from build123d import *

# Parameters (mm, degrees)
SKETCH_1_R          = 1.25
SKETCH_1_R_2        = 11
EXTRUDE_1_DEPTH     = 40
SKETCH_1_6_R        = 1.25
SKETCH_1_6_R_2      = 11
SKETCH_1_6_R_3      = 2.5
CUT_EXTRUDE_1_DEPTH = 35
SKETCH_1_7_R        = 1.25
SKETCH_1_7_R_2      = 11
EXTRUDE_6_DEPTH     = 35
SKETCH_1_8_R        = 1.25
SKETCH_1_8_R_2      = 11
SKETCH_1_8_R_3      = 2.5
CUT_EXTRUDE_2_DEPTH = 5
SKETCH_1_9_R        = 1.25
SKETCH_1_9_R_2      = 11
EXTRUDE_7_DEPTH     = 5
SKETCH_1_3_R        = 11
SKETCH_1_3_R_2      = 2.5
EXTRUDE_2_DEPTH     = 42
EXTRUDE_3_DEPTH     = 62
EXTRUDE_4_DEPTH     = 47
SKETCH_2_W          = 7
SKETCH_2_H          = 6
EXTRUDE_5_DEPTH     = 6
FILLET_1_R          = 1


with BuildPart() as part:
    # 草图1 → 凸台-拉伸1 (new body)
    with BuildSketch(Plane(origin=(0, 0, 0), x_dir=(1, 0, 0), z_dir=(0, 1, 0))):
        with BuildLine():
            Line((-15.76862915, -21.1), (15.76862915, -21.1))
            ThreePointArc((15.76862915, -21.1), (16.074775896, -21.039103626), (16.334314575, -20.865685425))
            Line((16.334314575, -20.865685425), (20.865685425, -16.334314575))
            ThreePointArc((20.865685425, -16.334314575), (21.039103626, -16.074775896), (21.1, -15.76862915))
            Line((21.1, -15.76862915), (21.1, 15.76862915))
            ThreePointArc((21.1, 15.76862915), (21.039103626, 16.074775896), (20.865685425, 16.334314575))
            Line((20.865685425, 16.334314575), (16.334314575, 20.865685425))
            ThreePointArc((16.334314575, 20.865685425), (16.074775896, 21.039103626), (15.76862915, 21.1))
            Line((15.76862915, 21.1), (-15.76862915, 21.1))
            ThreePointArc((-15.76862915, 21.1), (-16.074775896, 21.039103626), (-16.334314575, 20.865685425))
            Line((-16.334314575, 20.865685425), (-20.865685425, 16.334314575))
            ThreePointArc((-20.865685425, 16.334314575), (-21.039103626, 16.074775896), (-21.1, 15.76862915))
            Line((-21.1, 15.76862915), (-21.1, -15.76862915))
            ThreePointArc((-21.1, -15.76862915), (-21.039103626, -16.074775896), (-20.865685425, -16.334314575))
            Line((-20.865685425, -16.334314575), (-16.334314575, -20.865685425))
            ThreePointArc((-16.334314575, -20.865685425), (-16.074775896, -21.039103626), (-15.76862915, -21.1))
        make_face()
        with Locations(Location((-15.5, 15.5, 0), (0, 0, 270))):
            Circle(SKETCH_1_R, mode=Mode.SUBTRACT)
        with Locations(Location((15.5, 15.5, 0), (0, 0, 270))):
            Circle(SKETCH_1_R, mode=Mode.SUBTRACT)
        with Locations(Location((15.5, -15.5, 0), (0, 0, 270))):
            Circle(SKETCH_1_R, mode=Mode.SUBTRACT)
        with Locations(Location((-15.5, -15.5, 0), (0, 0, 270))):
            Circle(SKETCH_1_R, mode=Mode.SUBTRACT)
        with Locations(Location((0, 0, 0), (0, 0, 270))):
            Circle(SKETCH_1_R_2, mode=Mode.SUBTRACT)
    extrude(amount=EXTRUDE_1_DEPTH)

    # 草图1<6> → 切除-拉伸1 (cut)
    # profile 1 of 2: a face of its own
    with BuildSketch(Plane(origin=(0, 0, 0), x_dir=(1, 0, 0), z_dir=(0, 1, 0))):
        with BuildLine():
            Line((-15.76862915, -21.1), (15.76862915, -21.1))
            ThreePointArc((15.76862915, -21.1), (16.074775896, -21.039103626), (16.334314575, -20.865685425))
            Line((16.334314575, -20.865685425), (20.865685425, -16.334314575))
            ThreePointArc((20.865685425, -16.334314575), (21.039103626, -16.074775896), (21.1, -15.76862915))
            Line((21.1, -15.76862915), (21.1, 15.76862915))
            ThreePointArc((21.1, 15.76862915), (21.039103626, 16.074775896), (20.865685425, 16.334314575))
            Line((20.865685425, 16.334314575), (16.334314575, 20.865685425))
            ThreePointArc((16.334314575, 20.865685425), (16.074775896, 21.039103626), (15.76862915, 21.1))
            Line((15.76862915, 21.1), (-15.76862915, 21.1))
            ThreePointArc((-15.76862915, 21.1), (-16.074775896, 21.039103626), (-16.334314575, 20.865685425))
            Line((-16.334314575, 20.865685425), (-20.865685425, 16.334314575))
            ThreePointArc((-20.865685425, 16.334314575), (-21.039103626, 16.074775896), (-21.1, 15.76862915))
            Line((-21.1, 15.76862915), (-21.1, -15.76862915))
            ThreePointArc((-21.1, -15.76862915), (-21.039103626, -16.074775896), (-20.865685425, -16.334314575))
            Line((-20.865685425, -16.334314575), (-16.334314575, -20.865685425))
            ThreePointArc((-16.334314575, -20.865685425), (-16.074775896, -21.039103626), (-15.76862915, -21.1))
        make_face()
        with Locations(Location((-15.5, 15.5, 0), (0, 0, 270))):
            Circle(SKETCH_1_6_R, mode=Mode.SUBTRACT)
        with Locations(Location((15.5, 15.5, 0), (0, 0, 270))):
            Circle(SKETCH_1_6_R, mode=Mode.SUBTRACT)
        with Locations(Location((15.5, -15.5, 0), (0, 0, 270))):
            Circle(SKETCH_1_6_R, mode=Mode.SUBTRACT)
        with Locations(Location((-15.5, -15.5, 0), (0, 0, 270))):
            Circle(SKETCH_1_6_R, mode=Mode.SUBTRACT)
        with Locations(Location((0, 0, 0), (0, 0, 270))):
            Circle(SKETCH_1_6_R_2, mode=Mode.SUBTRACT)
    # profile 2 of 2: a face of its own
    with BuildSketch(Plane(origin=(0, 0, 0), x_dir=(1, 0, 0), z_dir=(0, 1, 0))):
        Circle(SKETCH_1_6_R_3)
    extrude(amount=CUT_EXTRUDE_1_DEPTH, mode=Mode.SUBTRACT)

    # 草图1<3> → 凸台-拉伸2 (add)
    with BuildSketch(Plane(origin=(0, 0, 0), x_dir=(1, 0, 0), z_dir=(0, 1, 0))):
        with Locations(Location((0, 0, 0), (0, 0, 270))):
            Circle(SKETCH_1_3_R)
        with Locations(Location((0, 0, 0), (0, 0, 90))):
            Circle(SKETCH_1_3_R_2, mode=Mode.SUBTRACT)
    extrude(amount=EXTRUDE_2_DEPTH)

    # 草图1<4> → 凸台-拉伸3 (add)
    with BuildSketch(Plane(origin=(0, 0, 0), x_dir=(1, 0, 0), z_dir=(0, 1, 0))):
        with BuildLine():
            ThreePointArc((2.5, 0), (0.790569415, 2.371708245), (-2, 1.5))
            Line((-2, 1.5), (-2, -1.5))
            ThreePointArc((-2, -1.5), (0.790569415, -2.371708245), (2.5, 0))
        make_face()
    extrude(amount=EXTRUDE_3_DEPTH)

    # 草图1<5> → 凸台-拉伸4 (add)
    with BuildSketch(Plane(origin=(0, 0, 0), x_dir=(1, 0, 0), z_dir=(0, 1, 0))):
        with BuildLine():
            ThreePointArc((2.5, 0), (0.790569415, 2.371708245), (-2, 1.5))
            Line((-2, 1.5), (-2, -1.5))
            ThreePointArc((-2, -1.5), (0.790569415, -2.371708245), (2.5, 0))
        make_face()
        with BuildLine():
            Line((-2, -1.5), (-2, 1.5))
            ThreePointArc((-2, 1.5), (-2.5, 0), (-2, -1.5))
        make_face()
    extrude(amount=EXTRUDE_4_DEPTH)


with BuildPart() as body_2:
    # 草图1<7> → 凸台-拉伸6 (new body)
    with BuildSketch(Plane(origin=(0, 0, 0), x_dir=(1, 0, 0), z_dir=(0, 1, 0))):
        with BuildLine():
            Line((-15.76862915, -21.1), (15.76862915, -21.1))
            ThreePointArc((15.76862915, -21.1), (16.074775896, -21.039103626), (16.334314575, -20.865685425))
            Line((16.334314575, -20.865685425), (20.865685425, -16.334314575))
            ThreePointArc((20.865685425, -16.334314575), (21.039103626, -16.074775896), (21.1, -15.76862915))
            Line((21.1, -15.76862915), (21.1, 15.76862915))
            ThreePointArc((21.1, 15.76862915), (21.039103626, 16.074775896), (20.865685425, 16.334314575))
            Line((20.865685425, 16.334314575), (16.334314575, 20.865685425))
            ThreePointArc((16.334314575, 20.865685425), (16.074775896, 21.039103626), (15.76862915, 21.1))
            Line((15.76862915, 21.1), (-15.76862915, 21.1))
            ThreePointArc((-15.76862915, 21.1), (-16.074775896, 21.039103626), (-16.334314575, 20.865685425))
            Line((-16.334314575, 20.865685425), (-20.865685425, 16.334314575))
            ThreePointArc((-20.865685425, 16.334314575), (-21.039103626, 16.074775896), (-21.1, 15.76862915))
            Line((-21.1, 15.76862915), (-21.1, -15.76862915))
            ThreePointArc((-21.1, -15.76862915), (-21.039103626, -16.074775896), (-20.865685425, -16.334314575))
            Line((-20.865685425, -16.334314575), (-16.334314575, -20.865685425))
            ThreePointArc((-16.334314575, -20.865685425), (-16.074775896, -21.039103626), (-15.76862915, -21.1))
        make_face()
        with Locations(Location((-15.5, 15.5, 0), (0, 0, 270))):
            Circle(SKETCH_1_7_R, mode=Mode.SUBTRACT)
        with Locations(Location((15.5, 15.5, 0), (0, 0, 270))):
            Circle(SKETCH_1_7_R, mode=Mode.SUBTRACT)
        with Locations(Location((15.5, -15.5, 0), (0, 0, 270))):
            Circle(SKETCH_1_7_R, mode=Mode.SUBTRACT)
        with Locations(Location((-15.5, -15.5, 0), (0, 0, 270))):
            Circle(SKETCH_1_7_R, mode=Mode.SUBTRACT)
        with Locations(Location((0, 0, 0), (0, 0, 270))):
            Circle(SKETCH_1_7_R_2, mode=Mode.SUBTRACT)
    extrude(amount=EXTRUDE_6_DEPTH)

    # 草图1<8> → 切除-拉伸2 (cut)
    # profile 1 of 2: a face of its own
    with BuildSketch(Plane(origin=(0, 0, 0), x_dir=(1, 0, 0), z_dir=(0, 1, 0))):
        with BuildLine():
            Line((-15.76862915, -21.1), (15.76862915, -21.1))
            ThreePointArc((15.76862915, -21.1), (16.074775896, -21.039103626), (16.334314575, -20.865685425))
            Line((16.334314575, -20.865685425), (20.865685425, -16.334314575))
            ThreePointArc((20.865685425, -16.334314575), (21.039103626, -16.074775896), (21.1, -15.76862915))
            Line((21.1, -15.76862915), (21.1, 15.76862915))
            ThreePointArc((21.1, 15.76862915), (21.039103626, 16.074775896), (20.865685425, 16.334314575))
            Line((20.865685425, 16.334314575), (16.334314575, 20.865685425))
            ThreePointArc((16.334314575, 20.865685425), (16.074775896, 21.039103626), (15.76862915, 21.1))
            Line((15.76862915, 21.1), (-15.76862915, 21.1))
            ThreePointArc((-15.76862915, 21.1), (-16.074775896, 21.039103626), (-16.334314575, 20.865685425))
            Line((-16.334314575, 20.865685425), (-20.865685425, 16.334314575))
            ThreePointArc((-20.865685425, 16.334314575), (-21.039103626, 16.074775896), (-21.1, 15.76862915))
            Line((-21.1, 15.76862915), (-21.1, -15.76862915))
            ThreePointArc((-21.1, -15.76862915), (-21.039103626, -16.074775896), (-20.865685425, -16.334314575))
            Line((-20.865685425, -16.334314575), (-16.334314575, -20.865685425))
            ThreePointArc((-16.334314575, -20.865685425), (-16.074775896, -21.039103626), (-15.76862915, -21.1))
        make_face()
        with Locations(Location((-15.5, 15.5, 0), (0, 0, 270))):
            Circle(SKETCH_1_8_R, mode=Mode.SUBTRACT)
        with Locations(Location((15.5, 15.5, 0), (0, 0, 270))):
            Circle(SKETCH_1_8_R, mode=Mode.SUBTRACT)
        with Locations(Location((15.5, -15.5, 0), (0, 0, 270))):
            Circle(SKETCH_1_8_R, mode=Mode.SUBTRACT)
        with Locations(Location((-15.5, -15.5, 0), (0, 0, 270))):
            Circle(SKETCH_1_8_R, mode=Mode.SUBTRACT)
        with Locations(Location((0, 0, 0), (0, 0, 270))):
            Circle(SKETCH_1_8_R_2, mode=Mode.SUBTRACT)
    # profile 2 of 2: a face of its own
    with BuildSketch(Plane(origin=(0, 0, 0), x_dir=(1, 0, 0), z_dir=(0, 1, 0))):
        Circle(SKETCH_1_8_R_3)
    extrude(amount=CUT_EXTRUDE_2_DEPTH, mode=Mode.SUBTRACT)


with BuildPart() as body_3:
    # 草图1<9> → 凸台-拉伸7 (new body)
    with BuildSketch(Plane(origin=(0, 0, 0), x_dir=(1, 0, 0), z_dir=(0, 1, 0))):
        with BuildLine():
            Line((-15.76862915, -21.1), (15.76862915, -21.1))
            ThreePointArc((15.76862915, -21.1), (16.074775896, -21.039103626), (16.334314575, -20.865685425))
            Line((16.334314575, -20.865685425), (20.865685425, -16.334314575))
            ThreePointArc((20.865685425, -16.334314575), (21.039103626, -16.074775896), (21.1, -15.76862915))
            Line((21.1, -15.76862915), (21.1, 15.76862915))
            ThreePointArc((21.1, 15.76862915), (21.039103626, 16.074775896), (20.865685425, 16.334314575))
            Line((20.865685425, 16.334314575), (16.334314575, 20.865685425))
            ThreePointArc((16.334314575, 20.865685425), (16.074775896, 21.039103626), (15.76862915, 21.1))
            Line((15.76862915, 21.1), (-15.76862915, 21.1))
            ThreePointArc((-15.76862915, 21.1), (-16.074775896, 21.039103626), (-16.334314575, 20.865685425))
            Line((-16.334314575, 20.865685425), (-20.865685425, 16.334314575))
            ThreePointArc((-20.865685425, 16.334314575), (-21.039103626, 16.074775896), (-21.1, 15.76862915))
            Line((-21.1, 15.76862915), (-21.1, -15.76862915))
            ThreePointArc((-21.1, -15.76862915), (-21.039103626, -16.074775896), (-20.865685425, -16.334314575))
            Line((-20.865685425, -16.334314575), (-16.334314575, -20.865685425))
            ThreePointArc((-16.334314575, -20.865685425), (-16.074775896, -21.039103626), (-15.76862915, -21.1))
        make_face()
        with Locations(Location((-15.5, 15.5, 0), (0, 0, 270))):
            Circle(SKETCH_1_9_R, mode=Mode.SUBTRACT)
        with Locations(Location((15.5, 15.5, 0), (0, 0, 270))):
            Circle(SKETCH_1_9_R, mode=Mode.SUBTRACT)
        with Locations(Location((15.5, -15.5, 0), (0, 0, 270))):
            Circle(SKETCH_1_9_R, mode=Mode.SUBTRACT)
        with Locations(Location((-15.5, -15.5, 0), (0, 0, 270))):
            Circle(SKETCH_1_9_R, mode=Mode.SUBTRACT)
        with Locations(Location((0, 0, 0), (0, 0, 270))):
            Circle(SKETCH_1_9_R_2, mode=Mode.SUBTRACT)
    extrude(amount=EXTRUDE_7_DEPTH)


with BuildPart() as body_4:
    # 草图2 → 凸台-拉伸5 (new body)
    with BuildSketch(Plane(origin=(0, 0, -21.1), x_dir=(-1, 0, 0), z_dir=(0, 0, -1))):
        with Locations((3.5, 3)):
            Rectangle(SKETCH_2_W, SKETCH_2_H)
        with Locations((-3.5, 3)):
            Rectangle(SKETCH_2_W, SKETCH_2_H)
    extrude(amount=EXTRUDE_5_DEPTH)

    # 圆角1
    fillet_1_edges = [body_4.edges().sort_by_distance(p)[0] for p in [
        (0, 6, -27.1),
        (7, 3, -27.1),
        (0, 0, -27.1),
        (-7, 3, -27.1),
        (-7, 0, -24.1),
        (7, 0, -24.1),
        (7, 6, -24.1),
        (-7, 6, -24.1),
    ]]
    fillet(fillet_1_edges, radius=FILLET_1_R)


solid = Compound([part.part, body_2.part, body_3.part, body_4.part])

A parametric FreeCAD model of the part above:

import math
import FreeCAD as App
import Part
import Sketcher

V = App.Vector
Q = App.Units.Quantity


def edges_at(feature, points):
    """Names of the edges that pass closest to the given points."""
    edges = feature.Shape.Edges
    near = lambda p: min(range(len(edges)), key=lambda i: edges[i].distToShape(Part.Vertex(*p))[0])
    return sorted({f"Edge{near(p) + 1}" for p in points})

doc = App.newDocument("Part")
body = doc.addObject("PartDesign::Body", "Body")

sketch1 = body.newObject("Sketcher::SketchObject", "Sketch")
sketch1.AttachmentSupport = (doc.getObject("XZ_Plane"), [""])
sketch1.MapMode = "FlatFace"
sketch1.addGeometry([
    Part.LineSegment(V(-15.8, 21.1, 0), V(15.8, 21.1, 0)),
    Part.ArcOfCircle(Part.Circle(V(15.8, 20.3, 0), V(0, 0, 1), 0.8), math.radians(45), math.radians(90)),
    Part.LineSegment(V(16.3, 20.9, 0), V(20.9, 16.3, 0)),
    Part.ArcOfCircle(Part.Circle(V(20.3, 15.8, 0), V(0, 0, 1), 0.8), math.radians(0), math.radians(45)),
    Part.LineSegment(V(21.1, 15.8, 0), V(21.1, -15.8, 0)),
    Part.ArcOfCircle(Part.Circle(V(20.3, -15.8, 0), V(0, 0, 1), 0.8), math.radians(-45), math.radians(0)),
    Part.LineSegment(V(20.9, -16.3, 0), V(16.3, -20.9, 0)),
    Part.ArcOfCircle(Part.Circle(V(15.8, -20.3, 0), V(0, 0, 1), 0.8), math.radians(-90), math.radians(-45)),
    Part.LineSegment(V(15.8, -21.1, 0), V(-15.8, -21.1, 0)),
    Part.ArcOfCircle(Part.Circle(V(-15.8, -20.3, 0), V(0, 0, 1), 0.8), math.radians(-135), math.radians(-90)),
    Part.LineSegment(V(-16.3, -20.9, 0), V(-20.9, -16.3, 0)),
    Part.ArcOfCircle(Part.Circle(V(-20.3, -15.8, 0), V(0, 0, 1), 0.8), math.radians(180), math.radians(225)),
    Part.LineSegment(V(-21.1, -15.8, 0), V(-21.1, 15.8, 0)),
    Part.ArcOfCircle(Part.Circle(V(-20.3, 15.8, 0), V(0, 0, 1), 0.8), math.radians(135), math.radians(180)),
    Part.LineSegment(V(-20.9, 16.3, 0), V(-16.3, 20.9, 0)),
    Part.ArcOfCircle(Part.Circle(V(-15.8, 20.3, 0), V(0, 0, 1), 0.8), math.radians(90), math.radians(135)),
    Part.Circle(V(-15.5, 15.5, 0), V(0, 0, 1), 1.2),
    Part.Circle(V(15.5, 15.5, 0), V(0, 0, 1), 1.2),
    Part.Circle(V(-15.5, -15.5, 0), V(0, 0, 1), 1.2),
    Part.Circle(V(0, 0, 0), V(0, 0, 1), 11),
    Part.Circle(V(15.5, -15.5, 0), V(0, 0, 1), 1.2),
], False)
sketch1.addConstraint([
    Sketcher.Constraint("Tangent", 0, 2, 1, 2),
    Sketcher.Constraint("Tangent", 1, 1, 2, 1),
    Sketcher.Constraint("Tangent", 2, 2, 3, 2),
    Sketcher.Constraint("Tangent", 3, 1, 4, 1),
    Sketcher.Constraint("Tangent", 4, 2, 5, 2),
    Sketcher.Constraint("Tangent", 5, 1, 6, 1),
    Sketcher.Constraint("Tangent", 6, 2, 7, 2),
    Sketcher.Constraint("Tangent", 7, 1, 8, 1),
    Sketcher.Constraint("Tangent", 8, 2, 9, 2),
    Sketcher.Constraint("Tangent", 9, 1, 10, 1),
    Sketcher.Constraint("Tangent", 10, 2, 11, 2),
    Sketcher.Constraint("Tangent", 11, 1, 12, 1),
    Sketcher.Constraint("Tangent", 12, 2, 13, 2),
    Sketcher.Constraint("Tangent", 13, 1, 14, 1),
    Sketcher.Constraint("Tangent", 14, 2, 15, 2),
    Sketcher.Constraint("Tangent", 15, 1, 0, 1),
    Sketcher.Constraint("Horizontal", 0),
    Sketcher.Constraint("Vertical", 4),
    Sketcher.Constraint("Horizontal", 8),
    Sketcher.Constraint("Vertical", 12),
    Sketcher.Constraint("Coincident", 19, 3, -1, 1),
    Sketcher.Constraint("Equal", 1, 3),
    Sketcher.Constraint("Equal", 3, 5),
    Sketcher.Constraint("Equal", 5, 7),
    Sketcher.Constraint("Equal", 7, 9),
    Sketcher.Constraint("Equal", 9, 11),
    Sketcher.Constraint("Equal", 11, 13),
    Sketcher.Constraint("Equal", 13, 15),
    Sketcher.Constraint("Equal", 16, 17),
    Sketcher.Constraint("Equal", 17, 18),
    Sketcher.Constraint("Equal", 18, 20),
    Sketcher.Constraint("Symmetric", 1, 3, 9, 3, -1, 1),
    Sketcher.Constraint("Symmetric", 3, 3, 11, 3, -1, 1),
    Sketcher.Constraint("Symmetric", 17, 3, 18, 3, -1, 1),
    Sketcher.Constraint("Symmetric", 16, 3, 20, 3, -1, 1),
    Sketcher.Constraint("Symmetric", 5, 1, 13, 1, -1, 1),
    Sketcher.Constraint("Symmetric", 16, 3, 17, 3, -2),
    Sketcher.Constraint("Symmetric", 6, 2, 9, 1, -2),
    Sketcher.Constraint("Perpendicular", 2, 6),
    Sketcher.Constraint("Equal", 8, 4),
    Sketcher.Constraint("Diameter", 19, Q("22 mm")),
    Sketcher.Constraint("Diameter", 16, Q("2.5 mm")),
    Sketcher.Constraint("Radius", 1, Q("0.8 mm")),
    Sketcher.Constraint("DistanceX", 16, 3, 17, 3, Q("31 mm")),
    Sketcher.Constraint("DistanceY", 18, 3, 16, 3, Q("31 mm")),
    Sketcher.Constraint("DistanceY", -1, 1, 1, 3, Q("20.3 mm")),
    Sketcher.Constraint("DistanceX", 0, 1, 0, 2, Q("31.537258 mm")),
])
pad1 = body.newObject("PartDesign::Pad", "Pad")
pad1.Profile = sketch1
pad1.Length = 40
pad1.Reversed = True

sketch2 = body.newObject("Sketcher::SketchObject", "Sketch001")
sketch2.AttachmentSupport = (doc.getObject("XZ_Plane"), [""])
sketch2.MapMode = "FlatFace"
sketch2.addGeometry([
    Part.LineSegment(V(-15.8, 21.1, 0), V(15.8, 21.1, 0)),
    Part.ArcOfCircle(Part.Circle(V(15.8, 20.3, 0), V(0, 0, 1), 0.8), math.radians(45), math.radians(90)),
    Part.LineSegment(V(16.3, 20.9, 0), V(20.9, 16.3, 0)),
    Part.ArcOfCircle(Part.Circle(V(20.3, 15.8, 0), V(0, 0, 1), 0.8), math.radians(0), math.radians(45)),
    Part.LineSegment(V(21.1, 15.8, 0), V(21.1, -15.8, 0)),
    Part.ArcOfCircle(Part.Circle(V(20.3, -15.8, 0), V(0, 0, 1), 0.8), math.radians(-45), math.radians(0)),
    Part.LineSegment(V(20.9, -16.3, 0), V(16.3, -20.9, 0)),
    Part.ArcOfCircle(Part.Circle(V(15.8, -20.3, 0), V(0, 0, 1), 0.8), math.radians(-90), math.radians(-45)),
    Part.LineSegment(V(15.8, -21.1, 0), V(-15.8, -21.1, 0)),
    Part.ArcOfCircle(Part.Circle(V(-15.8, -20.3, 0), V(0, 0, 1), 0.8), math.radians(-135), math.radians(-90)),
    Part.LineSegment(V(-16.3, -20.9, 0), V(-20.9, -16.3, 0)),
    Part.ArcOfCircle(Part.Circle(V(-20.3, -15.8, 0), V(0, 0, 1), 0.8), math.radians(180), math.radians(225)),
    Part.LineSegment(V(-21.1, -15.8, 0), V(-21.1, 15.8, 0)),
    Part.ArcOfCircle(Part.Circle(V(-20.3, 15.8, 0), V(0, 0, 1), 0.8), math.radians(135), math.radians(180)),
    Part.LineSegment(V(-20.9, 16.3, 0), V(-16.3, 20.9, 0)),
    Part.ArcOfCircle(Part.Circle(V(-15.8, 20.3, 0), V(0, 0, 1), 0.8), math.radians(90), math.radians(135)),
    Part.Circle(V(-15.5, 15.5, 0), V(0, 0, 1), 1.2),
    Part.Circle(V(15.5, 15.5, 0), V(0, 0, 1), 1.2),
    Part.Circle(V(-15.5, -15.5, 0), V(0, 0, 1), 1.2),
    Part.Circle(V(0, 0, 0), V(0, 0, 1), 11),
    Part.Circle(V(15.5, -15.5, 0), V(0, 0, 1), 1.2),
    Part.Circle(V(0, 0, 0), V(0, 0, 1), 2.5),
], False)
sketch2.addConstraint([
    Sketcher.Constraint("Tangent", 0, 2, 1, 2),
    Sketcher.Constraint("Tangent", 1, 1, 2, 1),
    Sketcher.Constraint("Tangent", 2, 2, 3, 2),
    Sketcher.Constraint("Tangent", 3, 1, 4, 1),
    Sketcher.Constraint("Tangent", 4, 2, 5, 2),
    Sketcher.Constraint("Tangent", 5, 1, 6, 1),
    Sketcher.Constraint("Tangent", 6, 2, 7, 2),
    Sketcher.Constraint("Tangent", 7, 1, 8, 1),
    Sketcher.Constraint("Tangent", 8, 2, 9, 2),
    Sketcher.Constraint("Tangent", 9, 1, 10, 1),
    Sketcher.Constraint("Tangent", 10, 2, 11, 2),
    Sketcher.Constraint("Tangent", 11, 1, 12, 1),
    Sketcher.Constraint("Tangent", 12, 2, 13, 2),
    Sketcher.Constraint("Tangent", 13, 1, 14, 1),
    Sketcher.Constraint("Tangent", 14, 2, 15, 2),
    Sketcher.Constraint("Tangent", 15, 1, 0, 1),
    Sketcher.Constraint("Horizontal", 0),
    Sketcher.Constraint("Vertical", 4),
    Sketcher.Constraint("Horizontal", 8),
    Sketcher.Constraint("Vertical", 12),
    Sketcher.Constraint("Coincident", 19, 3, -1, 1),
    Sketcher.Constraint("Coincident", 21, 3, -1, 1),
    Sketcher.Constraint("Equal", 1, 3),
    Sketcher.Constraint("Equal", 3, 5),
    Sketcher.Constraint("Equal", 5, 7),
    Sketcher.Constraint("Equal", 7, 9),
    Sketcher.Constraint("Equal", 9, 11),
    Sketcher.Constraint("Equal", 11, 13),
    Sketcher.Constraint("Equal", 13, 15),
    Sketcher.Constraint("Equal", 16, 17),
    Sketcher.Constraint("Equal", 17, 18),
    Sketcher.Constraint("Equal", 18, 20),
    Sketcher.Constraint("Symmetric", 1, 3, 9, 3, -1, 1),
    Sketcher.Constraint("Symmetric", 3, 3, 11, 3, -1, 1),
    Sketcher.Constraint("Symmetric", 17, 3, 18, 3, -1, 1),
    Sketcher.Constraint("Symmetric", 16, 3, 20, 3, -1, 1),
    Sketcher.Constraint("Symmetric", 5, 1, 13, 1, -1, 1),
    Sketcher.Constraint("Symmetric", 16, 3, 17, 3, -2),
    Sketcher.Constraint("Symmetric", 6, 2, 9, 1, -2),
    Sketcher.Constraint("Perpendicular", 2, 6),
    Sketcher.Constraint("Equal", 8, 4),
    Sketcher.Constraint("Diameter", 19, Q("22 mm")),
    Sketcher.Constraint("Diameter", 21, Q("5 mm")),
    Sketcher.Constraint("Diameter", 16, Q("2.5 mm")),
    Sketcher.Constraint("Radius", 1, Q("0.8 mm")),
    Sketcher.Constraint("DistanceX", 16, 3, 17, 3, Q("31 mm")),
    Sketcher.Constraint("DistanceY", 18, 3, 16, 3, Q("31 mm")),
    Sketcher.Constraint("DistanceY", -1, 1, 1, 3, Q("20.3 mm")),
    Sketcher.Constraint("DistanceX", 0, 1, 0, 2, Q("31.537258 mm")),
])
pocket1 = body.newObject("PartDesign::Pocket", "Pocket")
pocket1.Profile = sketch2
pocket1.Length = 35

sketch3 = body.newObject("Sketcher::SketchObject", "Sketch002")
sketch3.AttachmentSupport = (doc.getObject("XZ_Plane"), [""])
sketch3.MapMode = "FlatFace"
sketch3.addGeometry([
    Part.Circle(V(0, 0, 0), V(0, 0, 1), 11),
    Part.Circle(V(0, 0, 0), V(0, 0, 1), 2.5),
], False)
sketch3.addConstraint([
    Sketcher.Constraint("Coincident", 0, 3, -1, 1),
    Sketcher.Constraint("Coincident", 1, 3, -1, 1),
    Sketcher.Constraint("Diameter", 0, Q("22 mm")),
    Sketcher.Constraint("Diameter", 1, Q("5 mm")),
])
pad2 = body.newObject("PartDesign::Pad", "Pad001")
pad2.Profile = sketch3
pad2.Length = 42
pad2.Reversed = True

sketch4 = body.newObject("Sketcher::SketchObject", "Sketch003")
sketch4.AttachmentSupport = (doc.getObject("XZ_Plane"), [""])
sketch4.MapMode = "FlatFace"
sketch4.addGeometry([
    Part.ArcOfCircle(Part.Circle(V(0, 0, 0), V(0, 0, 1), 2.5), math.radians(-143), math.radians(0)),
    Part.LineSegment(V(-2, -1.5, 0), V(-2, 1.5, 0)),
    Part.ArcOfCircle(Part.Circle(V(0, 0, 0), V(0, 0, 1), 2.5), math.radians(0), math.radians(143)),
], False)
sketch4.addConstraint([
    Sketcher.Constraint("Coincident", 0, 1, 1, 1),
    Sketcher.Constraint("Coincident", 1, 2, 2, 2),
    Sketcher.Constraint("Tangent", 2, 1, 0, 2),
    Sketcher.Constraint("Vertical", 1),
    Sketcher.Constraint("Coincident", 0, 3, -1, 1),
    Sketcher.Constraint("Equal", 0, 2),
    Sketcher.Constraint("PointOnObject", 2, 1, -1),
    Sketcher.Constraint("Radius", 0, Q("2.5 mm")),
    Sketcher.Constraint("DistanceY", 1, 1, 1, 2, Q("3 mm")),
])
pad3 = body.newObject("PartDesign::Pad", "Pad002")
pad3.Profile = sketch4
pad3.Length = 62
pad3.Reversed = True

sketch5 = body.newObject("Sketcher::SketchObject", "Sketch004")
sketch5.AttachmentSupport = (doc.getObject("XZ_Plane"), [""])
sketch5.MapMode = "FlatFace"
sketch5.addGeometry([
    Part.ArcOfCircle(Part.Circle(V(0, 0, 0), V(0, 0, 1), 2.5), math.radians(-143), math.radians(0)),
    Part.ArcOfCircle(Part.Circle(V(0, 0, 0), V(0, 0, 1), 2.5), math.radians(143), math.radians(217)),
    Part.ArcOfCircle(Part.Circle(V(0, 0, 0), V(0, 0, 1), 2.5), math.radians(0), math.radians(143)),
], False)
sketch5.addConstraint([
    Sketcher.Constraint("Tangent", 0, 1, 1, 2),
    Sketcher.Constraint("Tangent", 1, 1, 2, 2),
    Sketcher.Constraint("Tangent", 2, 1, 0, 2),
    Sketcher.Constraint("Coincident", 0, 3, -1, 1),
    Sketcher.Constraint("PointOnObject", 2, 1, -1),
    Sketcher.Constraint("Vertical", 0, 1, 1, 1),
    Sketcher.Constraint("Radius", 0, Q("2.5 mm")),
    Sketcher.Constraint("DistanceX", 0, 1, -1, 1, Q("2 mm")),
])
pad4 = body.newObject("PartDesign::Pad", "Pad003")
pad4.Profile = sketch5
pad4.Length = 47
pad4.Reversed = True
body2 = doc.addObject("PartDesign::Body", "Body001")

sketch6 = body2.newObject("Sketcher::SketchObject", "Sketch005")
sketch6.AttachmentSupport = (doc.getObject("XZ_Plane001"), [""])
sketch6.MapMode = "FlatFace"
sketch6.addGeometry([
    Part.LineSegment(V(-15.8, 21.1, 0), V(15.8, 21.1, 0)),
    Part.ArcOfCircle(Part.Circle(V(15.8, 20.3, 0), V(0, 0, 1), 0.8), math.radians(45), math.radians(90)),
    Part.LineSegment(V(16.3, 20.9, 0), V(20.9, 16.3, 0)),
    Part.ArcOfCircle(Part.Circle(V(20.3, 15.8, 0), V(0, 0, 1), 0.8), math.radians(0), math.radians(45)),
    Part.LineSegment(V(21.1, 15.8, 0), V(21.1, -15.8, 0)),
    Part.ArcOfCircle(Part.Circle(V(20.3, -15.8, 0), V(0, 0, 1), 0.8), math.radians(-45), math.radians(0)),
    Part.LineSegment(V(20.9, -16.3, 0), V(16.3, -20.9, 0)),
    Part.ArcOfCircle(Part.Circle(V(15.8, -20.3, 0), V(0, 0, 1), 0.8), math.radians(-90), math.radians(-45)),
    Part.LineSegment(V(15.8, -21.1, 0), V(-15.8, -21.1, 0)),
    Part.ArcOfCircle(Part.Circle(V(-15.8, -20.3, 0), V(0, 0, 1), 0.8), math.radians(-135), math.radians(-90)),
    Part.LineSegment(V(-16.3, -20.9, 0), V(-20.9, -16.3, 0)),
    Part.ArcOfCircle(Part.Circle(V(-20.3, -15.8, 0), V(0, 0, 1), 0.8), math.radians(180), math.radians(225)),
    Part.LineSegment(V(-21.1, -15.8, 0), V(-21.1, 15.8, 0)),
    Part.ArcOfCircle(Part.Circle(V(-20.3, 15.8, 0), V(0, 0, 1), 0.8), math.radians(135), math.radians(180)),
    Part.LineSegment(V(-20.9, 16.3, 0), V(-16.3, 20.9, 0)),
    Part.ArcOfCircle(Part.Circle(V(-15.8, 20.3, 0), V(0, 0, 1), 0.8), math.radians(90), math.radians(135)),
    Part.Circle(V(-15.5, 15.5, 0), V(0, 0, 1), 1.2),
    Part.Circle(V(15.5, 15.5, 0), V(0, 0, 1), 1.2),
    Part.Circle(V(-15.5, -15.5, 0), V(0, 0, 1), 1.2),
    Part.Circle(V(0, 0, 0), V(0, 0, 1), 11),
    Part.Circle(V(15.5, -15.5, 0), V(0, 0, 1), 1.2),
], False)
sketch6.addConstraint([
    Sketcher.Constraint("Tangent", 0, 2, 1, 2),
    Sketcher.Constraint("Tangent", 1, 1, 2, 1),
    Sketcher.Constraint("Tangent", 2, 2, 3, 2),
    Sketcher.Constraint("Tangent", 3, 1, 4, 1),
    Sketcher.Constraint("Tangent", 4, 2, 5, 2),
    Sketcher.Constraint("Tangent", 5, 1, 6, 1),
    Sketcher.Constraint("Tangent", 6, 2, 7, 2),
    Sketcher.Constraint("Tangent", 7, 1, 8, 1),
    Sketcher.Constraint("Tangent", 8, 2, 9, 2),
    Sketcher.Constraint("Tangent", 9, 1, 10, 1),
    Sketcher.Constraint("Tangent", 10, 2, 11, 2),
    Sketcher.Constraint("Tangent", 11, 1, 12, 1),
    Sketcher.Constraint("Tangent", 12, 2, 13, 2),
    Sketcher.Constraint("Tangent", 13, 1, 14, 1),
    Sketcher.Constraint("Tangent", 14, 2, 15, 2),
    Sketcher.Constraint("Tangent", 15, 1, 0, 1),
    Sketcher.Constraint("Horizontal", 0),
    Sketcher.Constraint("Vertical", 4),
    Sketcher.Constraint("Horizontal", 8),
    Sketcher.Constraint("Vertical", 12),
    Sketcher.Constraint("Coincident", 19, 3, -1, 1),
    Sketcher.Constraint("Equal", 1, 3),
    Sketcher.Constraint("Equal", 3, 5),
    Sketcher.Constraint("Equal", 5, 7),
    Sketcher.Constraint("Equal", 7, 9),
    Sketcher.Constraint("Equal", 9, 11),
    Sketcher.Constraint("Equal", 11, 13),
    Sketcher.Constraint("Equal", 13, 15),
    Sketcher.Constraint("Equal", 16, 17),
    Sketcher.Constraint("Equal", 17, 18),
    Sketcher.Constraint("Equal", 18, 20),
    Sketcher.Constraint("Symmetric", 1, 3, 9, 3, -1, 1),
    Sketcher.Constraint("Symmetric", 3, 3, 11, 3, -1, 1),
    Sketcher.Constraint("Symmetric", 17, 3, 18, 3, -1, 1),
    Sketcher.Constraint("Symmetric", 16, 3, 20, 3, -1, 1),
    Sketcher.Constraint("Symmetric", 5, 1, 13, 1, -1, 1),
    Sketcher.Constraint("Symmetric", 16, 3, 17, 3, -2),
    Sketcher.Constraint("Symmetric", 6, 2, 9, 1, -2),
    Sketcher.Constraint("Perpendicular", 2, 6),
    Sketcher.Constraint("Equal", 8, 4),
    Sketcher.Constraint("Diameter", 19, Q("22 mm")),
    Sketcher.Constraint("Diameter", 16, Q("2.5 mm")),
    Sketcher.Constraint("Radius", 1, Q("0.8 mm")),
    Sketcher.Constraint("DistanceX", 16, 3, 17, 3, Q("31 mm")),
    Sketcher.Constraint("DistanceY", 18, 3, 16, 3, Q("31 mm")),
    Sketcher.Constraint("DistanceY", -1, 1, 1, 3, Q("20.3 mm")),
    Sketcher.Constraint("DistanceX", 0, 1, 0, 2, Q("31.537258 mm")),
])
pad5 = body2.newObject("PartDesign::Pad", "Pad004")
pad5.Profile = sketch6
pad5.Length = 35
pad5.Reversed = True

sketch7 = body2.newObject("Sketcher::SketchObject", "Sketch006")
sketch7.AttachmentSupport = (doc.getObject("XZ_Plane001"), [""])
sketch7.MapMode = "FlatFace"
sketch7.addGeometry([
    Part.LineSegment(V(-15.8, 21.1, 0), V(15.8, 21.1, 0)),
    Part.ArcOfCircle(Part.Circle(V(15.8, 20.3, 0), V(0, 0, 1), 0.8), math.radians(45), math.radians(90)),
    Part.LineSegment(V(16.3, 20.9, 0), V(20.9, 16.3, 0)),
    Part.ArcOfCircle(Part.Circle(V(20.3, 15.8, 0), V(0, 0, 1), 0.8), math.radians(0), math.radians(45)),
    Part.LineSegment(V(21.1, 15.8, 0), V(21.1, -15.8, 0)),
    Part.ArcOfCircle(Part.Circle(V(20.3, -15.8, 0), V(0, 0, 1), 0.8), math.radians(-45), math.radians(0)),
    Part.LineSegment(V(20.9, -16.3, 0), V(16.3, -20.9, 0)),
    Part.ArcOfCircle(Part.Circle(V(15.8, -20.3, 0), V(0, 0, 1), 0.8), math.radians(-90), math.radians(-45)),
    Part.LineSegment(V(15.8, -21.1, 0), V(-15.8, -21.1, 0)),
    Part.ArcOfCircle(Part.Circle(V(-15.8, -20.3, 0), V(0, 0, 1), 0.8), math.radians(-135), math.radians(-90)),
    Part.LineSegment(V(-16.3, -20.9, 0), V(-20.9, -16.3, 0)),
    Part.ArcOfCircle(Part.Circle(V(-20.3, -15.8, 0), V(0, 0, 1), 0.8), math.radians(180), math.radians(225)),
    Part.LineSegment(V(-21.1, -15.8, 0), V(-21.1, 15.8, 0)),
    Part.ArcOfCircle(Part.Circle(V(-20.3, 15.8, 0), V(0, 0, 1), 0.8), math.radians(135), math.radians(180)),
    Part.LineSegment(V(-20.9, 16.3, 0), V(-16.3, 20.9, 0)),
    Part.ArcOfCircle(Part.Circle(V(-15.8, 20.3, 0), V(0, 0, 1), 0.8), math.radians(90), math.radians(135)),
    Part.Circle(V(-15.5, 15.5, 0), V(0, 0, 1), 1.2),
    Part.Circle(V(15.5, 15.5, 0), V(0, 0, 1), 1.2),
    Part.Circle(V(-15.5, -15.5, 0), V(0, 0, 1), 1.2),
    Part.Circle(V(0, 0, 0), V(0, 0, 1), 11),
    Part.Circle(V(15.5, -15.5, 0), V(0, 0, 1), 1.2),
    Part.Circle(V(0, 0, 0), V(0, 0, 1), 2.5),
], False)
sketch7.addConstraint([
    Sketcher.Constraint("Tangent", 0, 2, 1, 2),
    Sketcher.Constraint("Tangent", 1, 1, 2, 1),
    Sketcher.Constraint("Tangent", 2, 2, 3, 2),
    Sketcher.Constraint("Tangent", 3, 1, 4, 1),
    Sketcher.Constraint("Tangent", 4, 2, 5, 2),
    Sketcher.Constraint("Tangent", 5, 1, 6, 1),
    Sketcher.Constraint("Tangent", 6, 2, 7, 2),
    Sketcher.Constraint("Tangent", 7, 1, 8, 1),
    Sketcher.Constraint("Tangent", 8, 2, 9, 2),
    Sketcher.Constraint("Tangent", 9, 1, 10, 1),
    Sketcher.Constraint("Tangent", 10, 2, 11, 2),
    Sketcher.Constraint("Tangent", 11, 1, 12, 1),
    Sketcher.Constraint("Tangent", 12, 2, 13, 2),
    Sketcher.Constraint("Tangent", 13, 1, 14, 1),
    Sketcher.Constraint("Tangent", 14, 2, 15, 2),
    Sketcher.Constraint("Tangent", 15, 1, 0, 1),
    Sketcher.Constraint("Horizontal", 0),
    Sketcher.Constraint("Vertical", 4),
    Sketcher.Constraint("Horizontal", 8),
    Sketcher.Constraint("Vertical", 12),
    Sketcher.Constraint("Coincident", 19, 3, -1, 1),
    Sketcher.Constraint("Coincident", 21, 3, -1, 1),
    Sketcher.Constraint("Equal", 1, 3),
    Sketcher.Constraint("Equal", 3, 5),
    Sketcher.Constraint("Equal", 5, 7),
    Sketcher.Constraint("Equal", 7, 9),
    Sketcher.Constraint("Equal", 9, 11),
    Sketcher.Constraint("Equal", 11, 13),
    Sketcher.Constraint("Equal", 13, 15),
    Sketcher.Constraint("Equal", 16, 17),
    Sketcher.Constraint("Equal", 17, 18),
    Sketcher.Constraint("Equal", 18, 20),
    Sketcher.Constraint("Symmetric", 1, 3, 9, 3, -1, 1),
    Sketcher.Constraint("Symmetric", 3, 3, 11, 3, -1, 1),
    Sketcher.Constraint("Symmetric", 17, 3, 18, 3, -1, 1),
    Sketcher.Constraint("Symmetric", 16, 3, 20, 3, -1, 1),
    Sketcher.Constraint("Symmetric", 5, 1, 13, 1, -1, 1),
    Sketcher.Constraint("Symmetric", 16, 3, 17, 3, -2),
    Sketcher.Constraint("Symmetric", 6, 2, 9, 1, -2),
    Sketcher.Constraint("Perpendicular", 2, 6),
    Sketcher.Constraint("Equal", 8, 4),
    Sketcher.Constraint("Diameter", 19, Q("22 mm")),
    Sketcher.Constraint("Diameter", 21, Q("5 mm")),
    Sketcher.Constraint("Diameter", 16, Q("2.5 mm")),
    Sketcher.Constraint("Radius", 1, Q("0.8 mm")),
    Sketcher.Constraint("DistanceX", 16, 3, 17, 3, Q("31 mm")),
    Sketcher.Constraint("DistanceY", 18, 3, 16, 3, Q("31 mm")),
    Sketcher.Constraint("DistanceY", -1, 1, 1, 3, Q("20.3 mm")),
    Sketcher.Constraint("DistanceX", 0, 1, 0, 2, Q("31.537258 mm")),
])
pocket2 = body2.newObject("PartDesign::Pocket", "Pocket001")
pocket2.Profile = sketch7
pocket2.Length = 5
body3 = doc.addObject("PartDesign::Body", "Body002")

sketch8 = body3.newObject("Sketcher::SketchObject", "Sketch007")
sketch8.AttachmentSupport = (doc.getObject("XZ_Plane002"), [""])
sketch8.MapMode = "FlatFace"
sketch8.addGeometry([
    Part.LineSegment(V(-15.8, 21.1, 0), V(15.8, 21.1, 0)),
    Part.ArcOfCircle(Part.Circle(V(15.8, 20.3, 0), V(0, 0, 1), 0.8), math.radians(45), math.radians(90)),
    Part.LineSegment(V(16.3, 20.9, 0), V(20.9, 16.3, 0)),
    Part.ArcOfCircle(Part.Circle(V(20.3, 15.8, 0), V(0, 0, 1), 0.8), math.radians(0), math.radians(45)),
    Part.LineSegment(V(21.1, 15.8, 0), V(21.1, -15.8, 0)),
    Part.ArcOfCircle(Part.Circle(V(20.3, -15.8, 0), V(0, 0, 1), 0.8), math.radians(-45), math.radians(0)),
    Part.LineSegment(V(20.9, -16.3, 0), V(16.3, -20.9, 0)),
    Part.ArcOfCircle(Part.Circle(V(15.8, -20.3, 0), V(0, 0, 1), 0.8), math.radians(-90), math.radians(-45)),
    Part.LineSegment(V(15.8, -21.1, 0), V(-15.8, -21.1, 0)),
    Part.ArcOfCircle(Part.Circle(V(-15.8, -20.3, 0), V(0, 0, 1), 0.8), math.radians(-135), math.radians(-90)),
    Part.LineSegment(V(-16.3, -20.9, 0), V(-20.9, -16.3, 0)),
    Part.ArcOfCircle(Part.Circle(V(-20.3, -15.8, 0), V(0, 0, 1), 0.8), math.radians(180), math.radians(225)),
    Part.LineSegment(V(-21.1, -15.8, 0), V(-21.1, 15.8, 0)),
    Part.ArcOfCircle(Part.Circle(V(-20.3, 15.8, 0), V(0, 0, 1), 0.8), math.radians(135), math.radians(180)),
    Part.LineSegment(V(-20.9, 16.3, 0), V(-16.3, 20.9, 0)),
    Part.ArcOfCircle(Part.Circle(V(-15.8, 20.3, 0), V(0, 0, 1), 0.8), math.radians(90), math.radians(135)),
    Part.Circle(V(-15.5, 15.5, 0), V(0, 0, 1), 1.2),
    Part.Circle(V(15.5, 15.5, 0), V(0, 0, 1), 1.2),
    Part.Circle(V(-15.5, -15.5, 0), V(0, 0, 1), 1.2),
    Part.Circle(V(0, 0, 0), V(0, 0, 1), 11),
    Part.Circle(V(15.5, -15.5, 0), V(0, 0, 1), 1.2),
], False)
sketch8.addConstraint([
    Sketcher.Constraint("Tangent", 0, 2, 1, 2),
    Sketcher.Constraint("Tangent", 1, 1, 2, 1),
    Sketcher.Constraint("Tangent", 2, 2, 3, 2),
    Sketcher.Constraint("Tangent", 3, 1, 4, 1),
    Sketcher.Constraint("Tangent", 4, 2, 5, 2),
    Sketcher.Constraint("Tangent", 5, 1, 6, 1),
    Sketcher.Constraint("Tangent", 6, 2, 7, 2),
    Sketcher.Constraint("Tangent", 7, 1, 8, 1),
    Sketcher.Constraint("Tangent", 8, 2, 9, 2),
    Sketcher.Constraint("Tangent", 9, 1, 10, 1),
    Sketcher.Constraint("Tangent", 10, 2, 11, 2),
    Sketcher.Constraint("Tangent", 11, 1, 12, 1),
    Sketcher.Constraint("Tangent", 12, 2, 13, 2),
    Sketcher.Constraint("Tangent", 13, 1, 14, 1),
    Sketcher.Constraint("Tangent", 14, 2, 15, 2),
    Sketcher.Constraint("Tangent", 15, 1, 0, 1),
    Sketcher.Constraint("Horizontal", 0),
    Sketcher.Constraint("Vertical", 4),
    Sketcher.Constraint("Horizontal", 8),
    Sketcher.Constraint("Vertical", 12),
    Sketcher.Constraint("Coincident", 19, 3, -1, 1),
    Sketcher.Constraint("Equal", 1, 3),
    Sketcher.Constraint("Equal", 3, 5),
    Sketcher.Constraint("Equal", 5, 7),
    Sketcher.Constraint("Equal", 7, 9),
    Sketcher.Constraint("Equal", 9, 11),
    Sketcher.Constraint("Equal", 11, 13),
    Sketcher.Constraint("Equal", 13, 15),
    Sketcher.Constraint("Equal", 16, 17),
    Sketcher.Constraint("Equal", 17, 18),
    Sketcher.Constraint("Equal", 18, 20),
    Sketcher.Constraint("Symmetric", 1, 3, 9, 3, -1, 1),
    Sketcher.Constraint("Symmetric", 3, 3, 11, 3, -1, 1),
    Sketcher.Constraint("Symmetric", 17, 3, 18, 3, -1, 1),
    Sketcher.Constraint("Symmetric", 16, 3, 20, 3, -1, 1),
    Sketcher.Constraint("Symmetric", 5, 1, 13, 1, -1, 1),
    Sketcher.Constraint("Symmetric", 16, 3, 17, 3, -2),
    Sketcher.Constraint("Symmetric", 6, 2, 9, 1, -2),
    Sketcher.Constraint("Perpendicular", 2, 6),
    Sketcher.Constraint("Equal", 8, 4),
    Sketcher.Constraint("Diameter", 19, Q("22 mm")),
    Sketcher.Constraint("Diameter", 16, Q("2.5 mm")),
    Sketcher.Constraint("Radius", 1, Q("0.8 mm")),
    Sketcher.Constraint("DistanceX", 16, 3, 17, 3, Q("31 mm")),
    Sketcher.Constraint("DistanceY", 18, 3, 16, 3, Q("31 mm")),
    Sketcher.Constraint("DistanceY", -1, 1, 1, 3, Q("20.3 mm")),
    Sketcher.Constraint("DistanceX", 0, 1, 0, 2, Q("31.537258 mm")),
])
pad6 = body3.newObject("PartDesign::Pad", "Pad005")
pad6.Profile = sketch8
pad6.Length = 5
pad6.Reversed = True
body4 = doc.addObject("PartDesign::Body", "Body003")

sketch9 = body4.newObject("Sketcher::SketchObject", "Sketch008")
sketch9.AttachmentSupport = (doc.getObject("XY_Plane003"), [""])
sketch9.MapMode = "FlatFace"
sketch9.AttachmentOffset = App.Placement(V(0, 0, -21.1), App.Rotation())
sketch9.addGeometry([
    Part.LineSegment(V(-7, 0, 0), V(-7, 6, 0)),
    Part.LineSegment(V(-7, 6, 0), V(7, 6, 0)),
    Part.LineSegment(V(7, 6, 0), V(7, 0, 0)),
    Part.LineSegment(V(7, 0, 0), V(-7, 0, 0)),
], False)
sketch9.addConstraint([
    Sketcher.Constraint("Coincident", 0, 2, 1, 1),
    Sketcher.Constraint("Coincident", 1, 2, 2, 1),
    Sketcher.Constraint("Coincident", 2, 2, 3, 1),
    Sketcher.Constraint("Coincident", 3, 2, 0, 1),
    Sketcher.Constraint("Vertical", 0),
    Sketcher.Constraint("Horizontal", 1),
    Sketcher.Constraint("Vertical", 2),
    Sketcher.Constraint("Horizontal", 3),
    Sketcher.Constraint("Symmetric", 2, 2, 3, 2, -1, 1),
    Sketcher.Constraint("DistanceX", 1, 1, 1, 2, Q("14 mm")),
    Sketcher.Constraint("DistanceY", 0, 1, 0, 2, Q("6 mm")),
])
pad7 = body4.newObject("PartDesign::Pad", "Pad006")
pad7.Profile = sketch9
pad7.Length = 6
pad7.Reversed = True
doc.recompute()

fillet = body4.newObject("PartDesign::Fillet", "Fillet")
fillet.Base = (pad7, edges_at(pad7, [
    (0, 6, -27.1),
    (7, 3, -27.1),
    (0, 0, -27.1),
    (-7, 3, -27.1),
    (-7, 0, -24.1),
    (7, 0, -24.1),
    (7, 6, -24.1),
    (-7, 6, -24.1),
]))
fillet.Radius = 1

doc.recompute()
